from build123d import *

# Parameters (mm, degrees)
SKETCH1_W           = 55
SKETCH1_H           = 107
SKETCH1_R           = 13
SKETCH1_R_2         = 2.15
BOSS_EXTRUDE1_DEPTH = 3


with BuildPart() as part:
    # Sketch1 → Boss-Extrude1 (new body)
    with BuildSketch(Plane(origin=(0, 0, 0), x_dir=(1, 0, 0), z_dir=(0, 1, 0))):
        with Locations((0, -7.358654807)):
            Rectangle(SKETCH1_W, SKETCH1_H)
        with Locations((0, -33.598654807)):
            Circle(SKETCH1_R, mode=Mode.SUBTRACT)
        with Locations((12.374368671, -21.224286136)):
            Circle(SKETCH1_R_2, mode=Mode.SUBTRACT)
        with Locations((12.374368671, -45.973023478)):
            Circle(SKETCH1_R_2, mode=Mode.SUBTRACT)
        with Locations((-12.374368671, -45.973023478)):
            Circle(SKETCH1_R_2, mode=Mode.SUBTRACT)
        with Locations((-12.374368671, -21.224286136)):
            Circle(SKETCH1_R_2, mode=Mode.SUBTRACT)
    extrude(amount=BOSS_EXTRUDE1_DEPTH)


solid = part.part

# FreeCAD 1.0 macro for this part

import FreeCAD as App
import Part
import Sketcher


def add_polygon(sketch, points):
    """Adds a closed chain of lines whose ends are joined by coincident constraints."""
    first, n = sketch.GeometryCount, len(points)
    for a, b in zip(points, points[1:] + points[:1]):
        sketch.addGeometry(Part.LineSegment(App.Vector(*a, 0), App.Vector(*b, 0)), False)
    for i in range(n):
        sketch.addConstraint(Sketcher.Constraint("Coincident", first + i, 2, first + (i + 1) % n, 1))

doc = App.newDocument("Part")
params = doc.addObject("Spreadsheet::Sheet", "Params")
for row, (alias, value) in enumerate([
    ("sketch1_diameter", "26 mm"),
    ("sketch1_diameter2", "4.3 mm"),
    ("sketch1_width", "55 mm"),
    ("sketch1_height", "107 mm"),
    ("pad1_length", "3 mm"),
], start=1):
    params.set(f"A{row}", alias)
    params.set(f"B{row}", "=" + value)
    params.setAlias(f"B{row}", alias)

body = doc.addObject("PartDesign::Body", "Body")

# Sketch on XZ plane
sketch1 = doc.addObject("Sketcher::SketchObject", "Sketch")
body.addObject(sketch1)
sketch1.AttachmentSupport = (doc.XZ_Plane, [""])
sketch1.MapMode = "FlatFace"
add_polygon(sketch1, [(-27.5, -46.141345), (-27.5, 60.858655), (27.5, 60.858655), (27.5, -46.141345)])  # lines 0-3
sketch1.addGeometry(Part.Circle(App.Vector(-12.374369, 45.973023, 0), App.Vector(0, 0, 1), 2.15), False)  # 4
sketch1.addGeometry(Part.Circle(App.Vector(0, 33.598655, 0), App.Vector(0, 0, 1), 13), False)  # 5
sketch1.addGeometry(Part.Circle(App.Vector(12.374369, 45.973023, 0), App.Vector(0, 0, 1), 2.15), False)  # 6
sketch1.addGeometry(Part.Circle(App.Vector(-12.374369, 21.224286, 0), App.Vector(0, 0, 1), 2.15), False)  # 7
sketch1.addGeometry(Part.Circle(App.Vector(12.374369, 21.224286, 0), App.Vector(0, 0, 1), 2.15), False)  # 8
sketch1.addConstraint([
    Sketcher.Constraint("Vertical", 0),
    Sketcher.Constraint("Horizontal", 1),
    Sketcher.Constraint("Vertical", 2),
    Sketcher.Constraint("Horizontal", 3),
    Sketcher.Constraint("Equal", 4, 6),
    Sketcher.Constraint("Equal", 6, 7),
    Sketcher.Constraint("Equal", 7, 8),
    Sketcher.Constraint("Symmetric", 4, 3, 6, 3, -2),
    Sketcher.Constraint("Symmetric", 7, 3, 8, 3, -2),
    Sketcher.Constraint("PointOnObject", 5, 3, -2),
    Sketcher.Constraint("Vertical", 4, 3, 7, 3),
    Sketcher.Constraint("Diameter", 5, 26.0),
    Sketcher.Constraint("Diameter", 4, 4.3),
    Sketcher.Constraint("DistanceX", 1, 1, 1, 2, 55.0),
    Sketcher.Constraint("DistanceY", 0, 1, 0, 2, 107.0),
    Sketcher.Constraint("DistanceX", 0, 2, -1, 1, 27.5),
    Sketcher.Constraint("DistanceY", 5, 3, 0, 2, 27.26),
    Sketcher.Constraint("DistanceX", 4, 3, -1, 1, 12.374369),
    Sketcher.Constraint("DistanceY", 5, 3, 4, 3, 12.374369),
    Sketcher.Constraint("DistanceY", 7, 3, 5, 3, 12.374369),
    Sketcher.Constraint("DistanceY", -1, 1, 4, 3, 45.973023),
])
sketch1.setExpression("Constraints[15]", "Params.sketch1_diameter")
sketch1.setExpression("Constraints[16]", "Params.sketch1_diameter2")
sketch1.setExpression("Constraints[17]", "Params.sketch1_width")
sketch1.setExpression("Constraints[18]", "Params.sketch1_height")
pad1 = doc.addObject("PartDesign::Pad", "Pad")
body.addObject(pad1)
pad1.Profile = sketch1
pad1.setExpression("Length", "Params.pad1_length")
pad1.Reversed = True

doc.recompute()
